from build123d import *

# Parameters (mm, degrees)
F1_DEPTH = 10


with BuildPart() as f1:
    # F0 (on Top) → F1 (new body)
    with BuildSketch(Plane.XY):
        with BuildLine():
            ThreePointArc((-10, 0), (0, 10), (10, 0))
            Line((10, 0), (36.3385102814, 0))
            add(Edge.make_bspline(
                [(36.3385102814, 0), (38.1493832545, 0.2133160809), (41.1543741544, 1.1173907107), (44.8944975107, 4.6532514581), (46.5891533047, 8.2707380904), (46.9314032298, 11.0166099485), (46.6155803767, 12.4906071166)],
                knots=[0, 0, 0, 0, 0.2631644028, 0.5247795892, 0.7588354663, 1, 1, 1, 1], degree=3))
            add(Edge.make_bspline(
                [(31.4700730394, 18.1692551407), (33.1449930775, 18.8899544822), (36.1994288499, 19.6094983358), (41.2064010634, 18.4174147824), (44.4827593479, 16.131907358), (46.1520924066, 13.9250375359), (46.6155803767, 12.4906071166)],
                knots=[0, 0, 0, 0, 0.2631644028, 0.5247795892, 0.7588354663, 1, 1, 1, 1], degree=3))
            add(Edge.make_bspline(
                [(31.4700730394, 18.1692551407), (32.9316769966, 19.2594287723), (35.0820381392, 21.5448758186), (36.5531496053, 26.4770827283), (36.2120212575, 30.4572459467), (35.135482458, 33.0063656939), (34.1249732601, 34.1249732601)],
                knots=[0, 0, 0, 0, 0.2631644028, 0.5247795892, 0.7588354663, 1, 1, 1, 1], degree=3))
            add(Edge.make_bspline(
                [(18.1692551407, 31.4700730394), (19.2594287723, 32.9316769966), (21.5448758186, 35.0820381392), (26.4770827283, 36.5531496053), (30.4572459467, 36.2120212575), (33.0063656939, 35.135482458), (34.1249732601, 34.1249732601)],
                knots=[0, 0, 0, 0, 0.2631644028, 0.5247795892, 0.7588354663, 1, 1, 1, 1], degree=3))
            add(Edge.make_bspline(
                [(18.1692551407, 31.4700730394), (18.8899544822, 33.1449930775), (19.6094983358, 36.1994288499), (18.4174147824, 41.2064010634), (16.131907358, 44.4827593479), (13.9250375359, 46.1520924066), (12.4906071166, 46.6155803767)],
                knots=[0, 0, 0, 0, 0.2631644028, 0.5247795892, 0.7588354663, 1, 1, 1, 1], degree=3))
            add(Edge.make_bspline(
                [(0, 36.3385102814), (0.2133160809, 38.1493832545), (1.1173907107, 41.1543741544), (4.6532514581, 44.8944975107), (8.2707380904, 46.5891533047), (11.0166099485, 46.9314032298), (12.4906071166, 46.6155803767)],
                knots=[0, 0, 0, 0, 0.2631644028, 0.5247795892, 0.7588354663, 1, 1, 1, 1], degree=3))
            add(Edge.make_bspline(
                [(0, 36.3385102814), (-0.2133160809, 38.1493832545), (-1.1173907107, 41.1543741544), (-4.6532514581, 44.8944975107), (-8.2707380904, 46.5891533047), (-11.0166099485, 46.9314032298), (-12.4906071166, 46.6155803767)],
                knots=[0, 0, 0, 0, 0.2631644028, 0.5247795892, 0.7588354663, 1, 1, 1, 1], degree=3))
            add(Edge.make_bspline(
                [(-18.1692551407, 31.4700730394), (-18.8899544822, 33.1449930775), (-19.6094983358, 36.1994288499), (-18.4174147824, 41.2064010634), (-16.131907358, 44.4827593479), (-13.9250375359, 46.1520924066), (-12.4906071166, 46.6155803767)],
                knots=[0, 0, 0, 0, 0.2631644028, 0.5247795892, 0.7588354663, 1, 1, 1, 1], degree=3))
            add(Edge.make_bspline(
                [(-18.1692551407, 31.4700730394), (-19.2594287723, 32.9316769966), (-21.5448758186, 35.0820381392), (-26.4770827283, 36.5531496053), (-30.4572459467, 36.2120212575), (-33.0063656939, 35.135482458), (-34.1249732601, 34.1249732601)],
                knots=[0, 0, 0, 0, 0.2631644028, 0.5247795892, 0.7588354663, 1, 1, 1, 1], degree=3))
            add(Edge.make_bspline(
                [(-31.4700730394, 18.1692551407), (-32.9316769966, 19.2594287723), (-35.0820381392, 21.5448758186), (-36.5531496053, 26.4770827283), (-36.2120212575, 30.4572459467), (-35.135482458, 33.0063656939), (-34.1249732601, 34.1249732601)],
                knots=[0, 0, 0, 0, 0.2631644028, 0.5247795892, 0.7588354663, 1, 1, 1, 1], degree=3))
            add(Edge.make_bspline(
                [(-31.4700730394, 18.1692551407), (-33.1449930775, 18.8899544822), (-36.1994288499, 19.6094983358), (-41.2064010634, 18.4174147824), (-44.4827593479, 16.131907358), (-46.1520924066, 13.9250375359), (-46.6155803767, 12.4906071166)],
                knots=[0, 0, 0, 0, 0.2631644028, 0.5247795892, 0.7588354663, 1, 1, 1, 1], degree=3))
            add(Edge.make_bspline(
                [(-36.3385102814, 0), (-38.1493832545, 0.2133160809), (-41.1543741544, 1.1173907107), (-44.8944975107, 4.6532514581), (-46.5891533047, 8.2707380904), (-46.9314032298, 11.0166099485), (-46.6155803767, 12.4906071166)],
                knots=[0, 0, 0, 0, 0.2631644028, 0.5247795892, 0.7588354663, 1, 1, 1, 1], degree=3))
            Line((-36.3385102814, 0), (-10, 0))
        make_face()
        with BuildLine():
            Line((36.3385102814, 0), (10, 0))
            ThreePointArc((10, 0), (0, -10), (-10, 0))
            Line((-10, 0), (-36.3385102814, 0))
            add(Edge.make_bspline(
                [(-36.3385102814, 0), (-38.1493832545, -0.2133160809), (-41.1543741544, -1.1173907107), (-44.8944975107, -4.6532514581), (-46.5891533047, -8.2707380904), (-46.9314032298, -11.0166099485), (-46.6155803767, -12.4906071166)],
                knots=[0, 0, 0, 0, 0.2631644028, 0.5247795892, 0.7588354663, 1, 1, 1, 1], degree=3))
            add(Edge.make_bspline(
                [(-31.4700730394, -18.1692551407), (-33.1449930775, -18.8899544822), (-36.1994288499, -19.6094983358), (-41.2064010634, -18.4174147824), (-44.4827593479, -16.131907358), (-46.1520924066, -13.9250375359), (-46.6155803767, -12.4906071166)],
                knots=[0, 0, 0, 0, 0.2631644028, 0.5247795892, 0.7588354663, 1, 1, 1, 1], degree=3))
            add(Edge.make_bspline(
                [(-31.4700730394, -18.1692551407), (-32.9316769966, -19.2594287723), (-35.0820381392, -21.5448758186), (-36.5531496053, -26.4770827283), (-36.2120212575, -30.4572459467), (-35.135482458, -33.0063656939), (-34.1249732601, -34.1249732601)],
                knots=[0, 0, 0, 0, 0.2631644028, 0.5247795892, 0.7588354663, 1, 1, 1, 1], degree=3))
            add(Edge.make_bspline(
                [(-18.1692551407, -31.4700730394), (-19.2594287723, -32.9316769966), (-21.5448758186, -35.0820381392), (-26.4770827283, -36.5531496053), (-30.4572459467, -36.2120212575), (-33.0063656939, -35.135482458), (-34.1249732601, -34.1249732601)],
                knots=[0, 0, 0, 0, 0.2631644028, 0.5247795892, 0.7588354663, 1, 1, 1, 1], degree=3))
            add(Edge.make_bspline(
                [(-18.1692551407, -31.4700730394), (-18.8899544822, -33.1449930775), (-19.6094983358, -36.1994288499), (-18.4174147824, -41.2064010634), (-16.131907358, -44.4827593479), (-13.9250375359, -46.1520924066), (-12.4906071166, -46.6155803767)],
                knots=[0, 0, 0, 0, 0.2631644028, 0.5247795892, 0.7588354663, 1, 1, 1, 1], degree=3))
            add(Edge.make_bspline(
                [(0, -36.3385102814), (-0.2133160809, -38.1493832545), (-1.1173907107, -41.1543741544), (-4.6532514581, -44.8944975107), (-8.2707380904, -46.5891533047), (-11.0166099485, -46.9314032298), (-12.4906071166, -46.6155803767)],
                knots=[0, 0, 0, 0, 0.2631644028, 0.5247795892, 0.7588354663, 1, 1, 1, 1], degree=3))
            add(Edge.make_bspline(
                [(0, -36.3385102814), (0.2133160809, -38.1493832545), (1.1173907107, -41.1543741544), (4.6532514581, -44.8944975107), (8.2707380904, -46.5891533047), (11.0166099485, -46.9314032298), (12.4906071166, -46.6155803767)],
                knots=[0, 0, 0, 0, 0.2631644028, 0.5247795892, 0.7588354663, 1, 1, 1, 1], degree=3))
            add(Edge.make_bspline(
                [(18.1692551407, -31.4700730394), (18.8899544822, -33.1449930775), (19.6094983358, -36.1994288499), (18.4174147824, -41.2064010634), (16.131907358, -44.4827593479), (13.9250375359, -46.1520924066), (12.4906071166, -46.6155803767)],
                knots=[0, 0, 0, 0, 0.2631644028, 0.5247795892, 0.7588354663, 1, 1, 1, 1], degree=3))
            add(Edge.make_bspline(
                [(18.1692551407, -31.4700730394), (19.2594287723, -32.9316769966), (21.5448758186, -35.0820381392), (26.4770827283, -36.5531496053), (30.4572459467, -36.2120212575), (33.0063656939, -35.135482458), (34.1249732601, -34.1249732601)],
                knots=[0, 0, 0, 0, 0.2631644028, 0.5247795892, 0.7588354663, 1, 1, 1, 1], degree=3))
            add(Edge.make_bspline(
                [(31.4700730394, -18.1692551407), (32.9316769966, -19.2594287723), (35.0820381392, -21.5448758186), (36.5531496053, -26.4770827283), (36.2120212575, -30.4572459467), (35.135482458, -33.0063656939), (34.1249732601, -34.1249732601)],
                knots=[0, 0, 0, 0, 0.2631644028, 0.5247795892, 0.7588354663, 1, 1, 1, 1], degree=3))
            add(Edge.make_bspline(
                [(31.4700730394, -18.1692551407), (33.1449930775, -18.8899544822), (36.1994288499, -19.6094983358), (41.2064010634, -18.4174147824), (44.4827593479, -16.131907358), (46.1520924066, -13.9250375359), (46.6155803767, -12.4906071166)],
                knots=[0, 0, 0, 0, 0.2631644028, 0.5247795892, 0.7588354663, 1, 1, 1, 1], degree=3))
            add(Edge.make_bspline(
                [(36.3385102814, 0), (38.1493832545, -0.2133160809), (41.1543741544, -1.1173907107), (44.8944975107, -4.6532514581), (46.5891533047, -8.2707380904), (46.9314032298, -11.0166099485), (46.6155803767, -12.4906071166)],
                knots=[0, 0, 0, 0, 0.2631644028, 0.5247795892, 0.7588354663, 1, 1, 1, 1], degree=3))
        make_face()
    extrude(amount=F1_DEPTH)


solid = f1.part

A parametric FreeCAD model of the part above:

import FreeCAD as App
import Part
import Sketcher
from FreeCAD import Vector
Q = App.Units.Quantity

doc = App.newDocument("Part")
body = doc.addObject("PartDesign::Body", "Body")

sketch1 = doc.addObject("Sketcher::SketchObject", "Sketch")
body.addObject(sketch1)
sketch1.AttachmentSupport = (doc.XY_Plane, [""])
sketch1.MapMode = "FlatFace"
sketch1.addGeometry([
    Part.BSplineCurve([Vector(36.33851, 0, 0), Vector(38.149383, 0.213316, 0), Vector(41.154374, 1.117391, 0), Vector(44.894498, 4.653251, 0), Vector(46.589153, 8.270738, 0), Vector(46.931403, 11.01661, 0), Vector(46.61558, 12.490607, 0)], [4, 1, 1, 1, 4], [0, 0.263164403, 0.524779589, 0.758835466, 1], False, 3, [1, 1, 1, 1, 1, 1, 1], False),
    Part.BSplineCurve([Vector(31.470073, 18.169255, 0), Vector(33.144993, 18.889954, 0), Vector(36.199429, 19.609498, 0), Vector(41.206401, 18.417415, 0), Vector(44.482759, 16.131907, 0), Vector(46.152092, 13.925038, 0), Vector(46.61558, 12.490607, 0)], [4, 1, 1, 1, 4], [0, 0.263164403, 0.524779589, 0.758835466, 1], False, 3, [1, 1, 1, 1, 1, 1, 1], False),
    Part.BSplineCurve([Vector(31.470073, 18.169255, 0), Vector(32.931677, 19.259429, 0), Vector(35.082038, 21.544876, 0), Vector(36.55315, 26.477083, 0), Vector(36.212021, 30.457246, 0), Vector(35.135482, 33.006366, 0), Vector(34.124973, 34.124973, 0)], [4, 1, 1, 1, 4], [0, 0.263164403, 0.524779589, 0.758835466, 1], False, 3, [1, 1, 1, 1, 1, 1, 1], False),
    Part.BSplineCurve([Vector(18.169255, 31.470073, 0), Vector(19.259429, 32.931677, 0), Vector(21.544876, 35.082038, 0), Vector(26.477083, 36.55315, 0), Vector(30.457246, 36.212021, 0), Vector(33.006366, 35.135482, 0), Vector(34.124973, 34.124973, 0)], [4, 1, 1, 1, 4], [0, 0.263164403, 0.524779589, 0.758835466, 1], False, 3, [1, 1, 1, 1, 1, 1, 1], False),
    Part.BSplineCurve([Vector(18.169255, 31.470073, 0), Vector(18.889954, 33.144993, 0), Vector(19.609498, 36.199429, 0), Vector(18.417415, 41.206401, 0), Vector(16.131907, 44.482759, 0), Vector(13.925038, 46.152092, 0), Vector(12.490607, 46.61558, 0)], [4, 1, 1, 1, 4], [0, 0.263164403, 0.524779589, 0.758835466, 1], False, 3, [1, 1, 1, 1, 1, 1, 1], False),
    Part.BSplineCurve([Vector(0, 36.33851, 0), Vector(0.213316, 38.149383, 0), Vector(1.117391, 41.154374, 0), Vector(4.653251, 44.894498, 0), Vector(8.270738, 46.589153, 0), Vector(11.01661, 46.931403, 0), Vector(12.490607, 46.61558, 0)], [4, 1, 1, 1, 4], [0, 0.263164403, 0.524779589, 0.758835466, 1], False, 3, [1, 1, 1, 1, 1, 1, 1], False),
    Part.BSplineCurve([Vector(0, 36.33851, 0), Vector(-0.213316, 38.149383, 0), Vector(-1.117391, 41.154374, 0), Vector(-4.653251, 44.894498, 0), Vector(-8.270738, 46.589153, 0), Vector(-11.01661, 46.931403, 0), Vector(-12.490607, 46.61558, 0)], [4, 1, 1, 1, 4], [0, 0.263164403, 0.524779589, 0.758835466, 1], False, 3, [1, 1, 1, 1, 1, 1, 1], False),
    Part.BSplineCurve([Vector(-18.169255, 31.470073, 0), Vector(-18.889954, 33.144993, 0), Vector(-19.609498, 36.199429, 0), Vector(-18.417415, 41.206401, 0), Vector(-16.131907, 44.482759, 0), Vector(-13.925038, 46.152092, 0), Vector(-12.490607, 46.61558, 0)], [4, 1, 1, 1, 4], [0, 0.263164403, 0.524779589, 0.758835466, 1], False, 3, [1, 1, 1, 1, 1, 1, 1], False),
    Part.BSplineCurve([Vector(-18.169255, 31.470073, 0), Vector(-19.259429, 32.931677, 0), Vector(-21.544876, 35.082038, 0), Vector(-26.477083, 36.55315, 0), Vector(-30.457246, 36.212021, 0), Vector(-33.006366, 35.135482, 0), Vector(-34.124973, 34.124973, 0)], [4, 1, 1, 1, 4], [0, 0.263164403, 0.524779589, 0.758835466, 1], False, 3, [1, 1, 1, 1, 1, 1, 1], False),
    Part.BSplineCurve([Vector(-31.470073, 18.169255, 0), Vector(-32.931677, 19.259429, 0), Vector(-35.082038, 21.544876, 0), Vector(-36.55315, 26.477083, 0), Vector(-36.212021, 30.457246, 0), Vector(-35.135482, 33.006366, 0), Vector(-34.124973, 34.124973, 0)], [4, 1, 1, 1, 4], [0, 0.263164403, 0.524779589, 0.758835466, 1], False, 3, [1, 1, 1, 1, 1, 1, 1], False),
    Part.BSplineCurve([Vector(-31.470073, 18.169255, 0), Vector(-33.144993, 18.889954, 0), Vector(-36.199429, 19.609498, 0), Vector(-41.206401, 18.417415, 0), Vector(-44.482759, 16.131907, 0), Vector(-46.152092, 13.925038, 0), Vector(-46.61558, 12.490607, 0)], [4, 1, 1, 1, 4], [0, 0.263164403, 0.524779589, 0.758835466, 1], False, 3, [1, 1, 1, 1, 1, 1, 1], False),
    Part.BSplineCurve([Vector(-36.33851, 0, 0), Vector(-38.149383, 0.213316, 0), Vector(-41.154374, 1.117391, 0), Vector(-44.894498, 4.653251, 0), Vector(-46.589153, 8.270738, 0), Vector(-46.931403, 11.01661, 0), Vector(-46.61558, 12.490607, 0)], [4, 1, 1, 1, 4], [0, 0.263164403, 0.524779589, 0.758835466, 1], False, 3, [1, 1, 1, 1, 1, 1, 1], False),
    Part.BSplineCurve([Vector(-36.33851, 0, 0), Vector(-38.149383, -0.213316, 0), Vector(-41.154374, -1.117391, 0), Vector(-44.894498, -4.653251, 0), Vector(-46.589153, -8.270738, 0), Vector(-46.931403, -11.01661, 0), Vector(-46.61558, -12.490607, 0)], [4, 1, 1, 1, 4], [0, 0.263164403, 0.524779589, 0.758835466, 1], False, 3, [1, 1, 1, 1, 1, 1, 1], False),
    Part.BSplineCurve([Vector(-31.470073, -18.169255, 0), Vector(-33.144993, -18.889954, 0), Vector(-36.199429, -19.609498, 0), Vector(-41.206401, -18.417415, 0), Vector(-44.482759, -16.131907, 0), Vector(-46.152092, -13.925038, 0), Vector(-46.61558, -12.490607, 0)], [4, 1, 1, 1, 4], [0, 0.263164403, 0.524779589, 0.758835466, 1], False, 3, [1, 1, 1, 1, 1, 1, 1], False),
    Part.BSplineCurve([Vector(-31.470073, -18.169255, 0), Vector(-32.931677, -19.259429, 0), Vector(-35.082038, -21.544876, 0), Vector(-36.55315, -26.477083, 0), Vector(-36.212021, -30.457246, 0), Vector(-35.135482, -33.006366, 0), Vector(-34.124973, -34.124973, 0)], [4, 1, 1, 1, 4], [0, 0.263164403, 0.524779589, 0.758835466, 1], False, 3, [1, 1, 1, 1, 1, 1, 1], False),
    Part.BSplineCurve([Vector(-18.169255, -31.470073, 0), Vector(-19.259429, -32.931677, 0), Vector(-21.544876, -35.082038, 0), Vector(-26.477083, -36.55315, 0), Vector(-30.457246, -36.212021, 0), Vector(-33.006366, -35.135482, 0), Vector(-34.124973, -34.124973, 0)], [4, 1, 1, 1, 4], [0, 0.263164403, 0.524779589, 0.758835466, 1], False, 3, [1, 1, 1, 1, 1, 1, 1], False),
    Part.BSplineCurve([Vector(-18.169255, -31.470073, 0), Vector(-18.889954, -33.144993, 0), Vector(-19.609498, -36.199429, 0), Vector(-18.417415, -41.206401, 0), Vector(-16.131907, -44.482759, 0), Vector(-13.925038, -46.152092, 0), Vector(-12.490607, -46.61558, 0)], [4, 1, 1, 1, 4], [0, 0.263164403, 0.524779589, 0.758835466, 1], False, 3, [1, 1, 1, 1, 1, 1, 1], False),
    Part.BSplineCurve([Vector(0, -36.33851, 0), Vector(-0.213316, -38.149383, 0), Vector(-1.117391, -41.154374, 0), Vector(-4.653251, -44.894498, 0), Vector(-8.270738, -46.589153, 0), Vector(-11.01661, -46.931403, 0), Vector(-12.490607, -46.61558, 0)], [4, 1, 1, 1, 4], [0, 0.263164403, 0.524779589, 0.758835466, 1], False, 3, [1, 1, 1, 1, 1, 1, 1], False),
    Part.BSplineCurve([Vector(0, -36.33851, 0), Vector(0.213316, -38.149383, 0), Vector(1.117391, -41.154374, 0), Vector(4.653251, -44.894498, 0), Vector(8.270738, -46.589153, 0), Vector(11.01661, -46.931403, 0), Vector(12.490607, -46.61558, 0)], [4, 1, 1, 1, 4], [0, 0.263164403, 0.524779589, 0.758835466, 1], False, 3, [1, 1, 1, 1, 1, 1, 1], False),
    Part.BSplineCurve([Vector(18.169255, -31.470073, 0), Vector(18.889954, -33.144993, 0), Vector(19.609498, -36.199429, 0), Vector(18.417415, -41.206401, 0), Vector(16.131907, -44.482759, 0), Vector(13.925038, -46.152092, 0), Vector(12.490607, -46.61558, 0)], [4, 1, 1, 1, 4], [0, 0.263164403, 0.524779589, 0.758835466, 1], False, 3, [1, 1, 1, 1, 1, 1, 1], False),
    Part.BSplineCurve([Vector(18.169255, -31.470073, 0), Vector(19.259429, -32.931677, 0), Vector(21.544876, -35.082038, 0), Vector(26.477083, -36.55315, 0), Vector(30.457246, -36.212021, 0), Vector(33.006366, -35.135482, 0), Vector(34.124973, -34.124973, 0)], [4, 1, 1, 1, 4], [0, 0.263164403, 0.524779589, 0.758835466, 1], False, 3, [1, 1, 1, 1, 1, 1, 1], False),
    Part.BSplineCurve([Vector(31.470073, -18.169255, 0), Vector(32.931677, -19.259429, 0), Vector(35.082038, -21.544876, 0), Vector(36.55315, -26.477083, 0), Vector(36.212021, -30.457246, 0), Vector(35.135482, -33.006366, 0), Vector(34.124973, -34.124973, 0)], [4, 1, 1, 1, 4], [0, 0.263164403, 0.524779589, 0.758835466, 1], False, 3, [1, 1, 1, 1, 1, 1, 1], False),
    Part.BSplineCurve([Vector(31.470073, -18.169255, 0), Vector(33.144993, -18.889954, 0), Vector(36.199429, -19.609498, 0), Vector(41.206401, -18.417415, 0), Vector(44.482759, -16.131907, 0), Vector(46.152092, -13.925038, 0), Vector(46.61558, -12.490607, 0)], [4, 1, 1, 1, 4], [0, 0.263164403, 0.524779589, 0.758835466, 1], False, 3, [1, 1, 1, 1, 1, 1, 1], False),
    Part.BSplineCurve([Vector(36.33851, 0, 0), Vector(38.149383, -0.213316, 0), Vector(41.154374, -1.117391, 0), Vector(44.894498, -4.653251, 0), Vector(46.589153, -8.270738, 0), Vector(46.931403, -11.01661, 0), Vector(46.61558, -12.490607, 0)], [4, 1, 1, 1, 4], [0, 0.263164403, 0.524779589, 0.758835466, 1], False, 3, [1, 1, 1, 1, 1, 1, 1], False),
    Part.Circle(Vector(0, 0, 0), Vector(0, 0, 1), 10),
], False)
sketch1.addConstraint([
    Sketcher.Constraint("Block", 0),
    Sketcher.Constraint("Block", 1),
    Sketcher.Constraint("Block", 2),
    Sketcher.Constraint("Block", 3),
    Sketcher.Constraint("Block", 4),
    Sketcher.Constraint("Block", 5),
    Sketcher.Constraint("Block", 6),
    Sketcher.Constraint("Block", 7),
    Sketcher.Constraint("Block", 8),
    Sketcher.Constraint("Block", 9),
    Sketcher.Constraint("Block", 10),
    Sketcher.Constraint("Block", 11),
    Sketcher.Constraint("Block", 12),
    Sketcher.Constraint("Block", 13),
    Sketcher.Constraint("Block", 14),
    Sketcher.Constraint("Block", 15),
    Sketcher.Constraint("Block", 16),
    Sketcher.Constraint("Block", 17),
    Sketcher.Constraint("Block", 18),
    Sketcher.Constraint("Block", 19),
    Sketcher.Constraint("Block", 20),
    Sketcher.Constraint("Block", 21),
    Sketcher.Constraint("Block", 22),
    Sketcher.Constraint("Block", 23),
    Sketcher.Constraint("Coincident", 24, 3, -1, 1),
    Sketcher.Constraint("Diameter", 24, Q("20 mm")),
])
pad1 = doc.addObject("PartDesign::Pad", "Pad")
body.addObject(pad1)
pad1.Profile = sketch1
pad1.Length = 10

doc.recompute()
